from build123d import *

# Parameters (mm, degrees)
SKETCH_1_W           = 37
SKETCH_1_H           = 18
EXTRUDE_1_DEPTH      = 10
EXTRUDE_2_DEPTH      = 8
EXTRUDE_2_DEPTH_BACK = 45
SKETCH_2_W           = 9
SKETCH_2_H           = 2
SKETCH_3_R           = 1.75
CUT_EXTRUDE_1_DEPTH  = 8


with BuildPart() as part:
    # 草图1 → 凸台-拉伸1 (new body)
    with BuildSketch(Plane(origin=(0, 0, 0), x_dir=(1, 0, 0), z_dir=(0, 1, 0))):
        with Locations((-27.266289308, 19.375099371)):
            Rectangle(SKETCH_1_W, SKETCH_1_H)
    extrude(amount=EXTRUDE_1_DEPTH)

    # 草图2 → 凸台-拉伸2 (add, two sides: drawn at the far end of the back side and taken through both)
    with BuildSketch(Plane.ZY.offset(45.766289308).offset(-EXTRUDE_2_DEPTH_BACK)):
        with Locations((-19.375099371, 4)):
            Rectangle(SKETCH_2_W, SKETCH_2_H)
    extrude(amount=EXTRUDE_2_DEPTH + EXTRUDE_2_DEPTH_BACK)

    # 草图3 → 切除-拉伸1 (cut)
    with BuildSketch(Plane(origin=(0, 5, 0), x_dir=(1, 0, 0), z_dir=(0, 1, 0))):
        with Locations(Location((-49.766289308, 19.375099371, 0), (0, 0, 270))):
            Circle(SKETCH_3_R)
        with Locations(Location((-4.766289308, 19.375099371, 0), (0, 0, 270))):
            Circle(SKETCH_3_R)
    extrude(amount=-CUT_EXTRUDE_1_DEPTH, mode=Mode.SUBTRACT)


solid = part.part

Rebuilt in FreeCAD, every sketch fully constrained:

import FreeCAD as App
import Part
import Sketcher

V = App.Vector
Q = App.Units.Quantity


def add_polygon(sketch, points):
    """Adds a closed chain of lines whose ends are joined by coincident constraints."""
    first, n = sketch.GeometryCount, len(points)
    for a, b in zip(points, points[1:] + points[:1]):
        sketch.addGeometry(Part.LineSegment(App.Vector(*a, 0), App.Vector(*b, 0)), False)
    for i in range(n):
        sketch.addConstraint(Sketcher.Constraint("Coincident", first + i, 2, first + (i + 1) % n, 1))

doc = App.newDocument("Part")
body = doc.addObject("PartDesign::Body", "Body")

# Sketch on XZ plane
sketch1 = doc.addObject("Sketcher::SketchObject", "Sketch")
body.addObject(sketch1)
sketch1.AttachmentSupport = (doc.XZ_Plane, [""])
sketch1.MapMode = "FlatFace"
add_polygon(sketch1, [(-46, -28), (-46, -10), (-9, -10), (-9, -28)])  # lines 0-3
sketch1.addConstraint(Sketcher.Constraint("Vertical", 0))
sketch1.addConstraint(Sketcher.Constraint("Horizontal", 1))
sketch1.addConstraint(Sketcher.Constraint("Vertical", 2))
sketch1.addConstraint(Sketcher.Constraint("Horizontal", 3))
sketch1.addConstraint(Sketcher.Constraint("DistanceX", 1, 1, 1, 2, Q("37 mm")))
sketch1.addConstraint(Sketcher.Constraint("DistanceY", 0, 1, 0, 2, Q("18 mm")))
sketch1.addConstraint(Sketcher.Constraint("DistanceY", 0, 2, -1, 1, Q("10.375099 mm")))
sketch1.addConstraint(Sketcher.Constraint("DistanceX", 0, 2, -1, 1, Q("45.766289 mm")))
pad1 = doc.addObject("PartDesign::Pad", "Pad")
body.addObject(pad1)
pad1.Profile = sketch1
pad1.Length = 10
pad1.Reversed = True

# Sketch on YZ plane
sketch2 = doc.addObject("Sketcher::SketchObject", "Sketch001")
body.addObject(sketch2)
sketch2.AttachmentSupport = (doc.YZ_Plane, [""])
sketch2.MapMode = "FlatFace"
sketch2.AttachmentOffset = App.Placement(V(0, 0, -45.766289), App.Rotation())
add_polygon(sketch2, [(5, -23.9), (3, -23.9), (3, -14.9), (5, -14.9)])  # lines 0-3
sketch2.addConstraint(Sketcher.Constraint("Horizontal", 0))
sketch2.addConstraint(Sketcher.Constraint("Vertical", 1))
sketch2.addConstraint(Sketcher.Constraint("Horizontal", 2))
sketch2.addConstraint(Sketcher.Constraint("Vertical", 3))
sketch2.addConstraint(Sketcher.Constraint("DistanceX", 0, 2, 0, 1, Q("2 mm")))
sketch2.addConstraint(Sketcher.Constraint("DistanceY", 1, 1, 1, 2, Q("9 mm")))
sketch2.addConstraint(Sketcher.Constraint("DistanceX", -1, 1, 0, 2, Q("3 mm")))
sketch2.addConstraint(Sketcher.Constraint("DistanceY", 0, 2, -1, 1, Q("23.875099 mm")))
pad2 = doc.addObject("PartDesign::Pad", "Pad001")
body.addObject(pad2)
pad2.Profile = sketch2
pad2.Type = "TwoLengths"
pad2.Length = 8
pad2.Length2 = 45
pad2.Reversed = True

# Sketch on XZ plane
sketch3 = doc.addObject("Sketcher::SketchObject", "Sketch002")
body.addObject(sketch3)
sketch3.AttachmentSupport = (doc.XZ_Plane, [""])
sketch3.MapMode = "FlatFace"
sketch3.AttachmentOffset = App.Placement(V(0, 0, -5), App.Rotation())
sketch3.addGeometry(Part.Circle(V(-49.8, -19.4, 0), V(0, 0, 1), 1.8), False)
sketch3.addGeometry(Part.Circle(V(-4.8, -19.4, 0), V(0, 0, 1), 1.8), False)
sketch3.addConstraint(Sketcher.Constraint("Equal", 0, 1))
sketch3.addConstraint(Sketcher.Constraint("Horizontal", 0, 3, 1, 3))
sketch3.addConstraint(Sketcher.Constraint("Diameter", 0, Q("3.5 mm")))
sketch3.addConstraint(Sketcher.Constraint("DistanceX", 0, 3, 1, 3, Q("45 mm")))
sketch3.addConstraint(Sketcher.Constraint("DistanceY", 0, 3, -1, 1, Q("19.375099 mm")))
sketch3.addConstraint(Sketcher.Constraint("DistanceX", 0, 3, -1, 1, Q("49.766289 mm")))
pocket1 = doc.addObject("PartDesign::Pocket", "Pocket")
body.addObject(pocket1)
pocket1.Profile = sketch3
pocket1.Length = 8
pocket1.Reversed = True

doc.recompute()
